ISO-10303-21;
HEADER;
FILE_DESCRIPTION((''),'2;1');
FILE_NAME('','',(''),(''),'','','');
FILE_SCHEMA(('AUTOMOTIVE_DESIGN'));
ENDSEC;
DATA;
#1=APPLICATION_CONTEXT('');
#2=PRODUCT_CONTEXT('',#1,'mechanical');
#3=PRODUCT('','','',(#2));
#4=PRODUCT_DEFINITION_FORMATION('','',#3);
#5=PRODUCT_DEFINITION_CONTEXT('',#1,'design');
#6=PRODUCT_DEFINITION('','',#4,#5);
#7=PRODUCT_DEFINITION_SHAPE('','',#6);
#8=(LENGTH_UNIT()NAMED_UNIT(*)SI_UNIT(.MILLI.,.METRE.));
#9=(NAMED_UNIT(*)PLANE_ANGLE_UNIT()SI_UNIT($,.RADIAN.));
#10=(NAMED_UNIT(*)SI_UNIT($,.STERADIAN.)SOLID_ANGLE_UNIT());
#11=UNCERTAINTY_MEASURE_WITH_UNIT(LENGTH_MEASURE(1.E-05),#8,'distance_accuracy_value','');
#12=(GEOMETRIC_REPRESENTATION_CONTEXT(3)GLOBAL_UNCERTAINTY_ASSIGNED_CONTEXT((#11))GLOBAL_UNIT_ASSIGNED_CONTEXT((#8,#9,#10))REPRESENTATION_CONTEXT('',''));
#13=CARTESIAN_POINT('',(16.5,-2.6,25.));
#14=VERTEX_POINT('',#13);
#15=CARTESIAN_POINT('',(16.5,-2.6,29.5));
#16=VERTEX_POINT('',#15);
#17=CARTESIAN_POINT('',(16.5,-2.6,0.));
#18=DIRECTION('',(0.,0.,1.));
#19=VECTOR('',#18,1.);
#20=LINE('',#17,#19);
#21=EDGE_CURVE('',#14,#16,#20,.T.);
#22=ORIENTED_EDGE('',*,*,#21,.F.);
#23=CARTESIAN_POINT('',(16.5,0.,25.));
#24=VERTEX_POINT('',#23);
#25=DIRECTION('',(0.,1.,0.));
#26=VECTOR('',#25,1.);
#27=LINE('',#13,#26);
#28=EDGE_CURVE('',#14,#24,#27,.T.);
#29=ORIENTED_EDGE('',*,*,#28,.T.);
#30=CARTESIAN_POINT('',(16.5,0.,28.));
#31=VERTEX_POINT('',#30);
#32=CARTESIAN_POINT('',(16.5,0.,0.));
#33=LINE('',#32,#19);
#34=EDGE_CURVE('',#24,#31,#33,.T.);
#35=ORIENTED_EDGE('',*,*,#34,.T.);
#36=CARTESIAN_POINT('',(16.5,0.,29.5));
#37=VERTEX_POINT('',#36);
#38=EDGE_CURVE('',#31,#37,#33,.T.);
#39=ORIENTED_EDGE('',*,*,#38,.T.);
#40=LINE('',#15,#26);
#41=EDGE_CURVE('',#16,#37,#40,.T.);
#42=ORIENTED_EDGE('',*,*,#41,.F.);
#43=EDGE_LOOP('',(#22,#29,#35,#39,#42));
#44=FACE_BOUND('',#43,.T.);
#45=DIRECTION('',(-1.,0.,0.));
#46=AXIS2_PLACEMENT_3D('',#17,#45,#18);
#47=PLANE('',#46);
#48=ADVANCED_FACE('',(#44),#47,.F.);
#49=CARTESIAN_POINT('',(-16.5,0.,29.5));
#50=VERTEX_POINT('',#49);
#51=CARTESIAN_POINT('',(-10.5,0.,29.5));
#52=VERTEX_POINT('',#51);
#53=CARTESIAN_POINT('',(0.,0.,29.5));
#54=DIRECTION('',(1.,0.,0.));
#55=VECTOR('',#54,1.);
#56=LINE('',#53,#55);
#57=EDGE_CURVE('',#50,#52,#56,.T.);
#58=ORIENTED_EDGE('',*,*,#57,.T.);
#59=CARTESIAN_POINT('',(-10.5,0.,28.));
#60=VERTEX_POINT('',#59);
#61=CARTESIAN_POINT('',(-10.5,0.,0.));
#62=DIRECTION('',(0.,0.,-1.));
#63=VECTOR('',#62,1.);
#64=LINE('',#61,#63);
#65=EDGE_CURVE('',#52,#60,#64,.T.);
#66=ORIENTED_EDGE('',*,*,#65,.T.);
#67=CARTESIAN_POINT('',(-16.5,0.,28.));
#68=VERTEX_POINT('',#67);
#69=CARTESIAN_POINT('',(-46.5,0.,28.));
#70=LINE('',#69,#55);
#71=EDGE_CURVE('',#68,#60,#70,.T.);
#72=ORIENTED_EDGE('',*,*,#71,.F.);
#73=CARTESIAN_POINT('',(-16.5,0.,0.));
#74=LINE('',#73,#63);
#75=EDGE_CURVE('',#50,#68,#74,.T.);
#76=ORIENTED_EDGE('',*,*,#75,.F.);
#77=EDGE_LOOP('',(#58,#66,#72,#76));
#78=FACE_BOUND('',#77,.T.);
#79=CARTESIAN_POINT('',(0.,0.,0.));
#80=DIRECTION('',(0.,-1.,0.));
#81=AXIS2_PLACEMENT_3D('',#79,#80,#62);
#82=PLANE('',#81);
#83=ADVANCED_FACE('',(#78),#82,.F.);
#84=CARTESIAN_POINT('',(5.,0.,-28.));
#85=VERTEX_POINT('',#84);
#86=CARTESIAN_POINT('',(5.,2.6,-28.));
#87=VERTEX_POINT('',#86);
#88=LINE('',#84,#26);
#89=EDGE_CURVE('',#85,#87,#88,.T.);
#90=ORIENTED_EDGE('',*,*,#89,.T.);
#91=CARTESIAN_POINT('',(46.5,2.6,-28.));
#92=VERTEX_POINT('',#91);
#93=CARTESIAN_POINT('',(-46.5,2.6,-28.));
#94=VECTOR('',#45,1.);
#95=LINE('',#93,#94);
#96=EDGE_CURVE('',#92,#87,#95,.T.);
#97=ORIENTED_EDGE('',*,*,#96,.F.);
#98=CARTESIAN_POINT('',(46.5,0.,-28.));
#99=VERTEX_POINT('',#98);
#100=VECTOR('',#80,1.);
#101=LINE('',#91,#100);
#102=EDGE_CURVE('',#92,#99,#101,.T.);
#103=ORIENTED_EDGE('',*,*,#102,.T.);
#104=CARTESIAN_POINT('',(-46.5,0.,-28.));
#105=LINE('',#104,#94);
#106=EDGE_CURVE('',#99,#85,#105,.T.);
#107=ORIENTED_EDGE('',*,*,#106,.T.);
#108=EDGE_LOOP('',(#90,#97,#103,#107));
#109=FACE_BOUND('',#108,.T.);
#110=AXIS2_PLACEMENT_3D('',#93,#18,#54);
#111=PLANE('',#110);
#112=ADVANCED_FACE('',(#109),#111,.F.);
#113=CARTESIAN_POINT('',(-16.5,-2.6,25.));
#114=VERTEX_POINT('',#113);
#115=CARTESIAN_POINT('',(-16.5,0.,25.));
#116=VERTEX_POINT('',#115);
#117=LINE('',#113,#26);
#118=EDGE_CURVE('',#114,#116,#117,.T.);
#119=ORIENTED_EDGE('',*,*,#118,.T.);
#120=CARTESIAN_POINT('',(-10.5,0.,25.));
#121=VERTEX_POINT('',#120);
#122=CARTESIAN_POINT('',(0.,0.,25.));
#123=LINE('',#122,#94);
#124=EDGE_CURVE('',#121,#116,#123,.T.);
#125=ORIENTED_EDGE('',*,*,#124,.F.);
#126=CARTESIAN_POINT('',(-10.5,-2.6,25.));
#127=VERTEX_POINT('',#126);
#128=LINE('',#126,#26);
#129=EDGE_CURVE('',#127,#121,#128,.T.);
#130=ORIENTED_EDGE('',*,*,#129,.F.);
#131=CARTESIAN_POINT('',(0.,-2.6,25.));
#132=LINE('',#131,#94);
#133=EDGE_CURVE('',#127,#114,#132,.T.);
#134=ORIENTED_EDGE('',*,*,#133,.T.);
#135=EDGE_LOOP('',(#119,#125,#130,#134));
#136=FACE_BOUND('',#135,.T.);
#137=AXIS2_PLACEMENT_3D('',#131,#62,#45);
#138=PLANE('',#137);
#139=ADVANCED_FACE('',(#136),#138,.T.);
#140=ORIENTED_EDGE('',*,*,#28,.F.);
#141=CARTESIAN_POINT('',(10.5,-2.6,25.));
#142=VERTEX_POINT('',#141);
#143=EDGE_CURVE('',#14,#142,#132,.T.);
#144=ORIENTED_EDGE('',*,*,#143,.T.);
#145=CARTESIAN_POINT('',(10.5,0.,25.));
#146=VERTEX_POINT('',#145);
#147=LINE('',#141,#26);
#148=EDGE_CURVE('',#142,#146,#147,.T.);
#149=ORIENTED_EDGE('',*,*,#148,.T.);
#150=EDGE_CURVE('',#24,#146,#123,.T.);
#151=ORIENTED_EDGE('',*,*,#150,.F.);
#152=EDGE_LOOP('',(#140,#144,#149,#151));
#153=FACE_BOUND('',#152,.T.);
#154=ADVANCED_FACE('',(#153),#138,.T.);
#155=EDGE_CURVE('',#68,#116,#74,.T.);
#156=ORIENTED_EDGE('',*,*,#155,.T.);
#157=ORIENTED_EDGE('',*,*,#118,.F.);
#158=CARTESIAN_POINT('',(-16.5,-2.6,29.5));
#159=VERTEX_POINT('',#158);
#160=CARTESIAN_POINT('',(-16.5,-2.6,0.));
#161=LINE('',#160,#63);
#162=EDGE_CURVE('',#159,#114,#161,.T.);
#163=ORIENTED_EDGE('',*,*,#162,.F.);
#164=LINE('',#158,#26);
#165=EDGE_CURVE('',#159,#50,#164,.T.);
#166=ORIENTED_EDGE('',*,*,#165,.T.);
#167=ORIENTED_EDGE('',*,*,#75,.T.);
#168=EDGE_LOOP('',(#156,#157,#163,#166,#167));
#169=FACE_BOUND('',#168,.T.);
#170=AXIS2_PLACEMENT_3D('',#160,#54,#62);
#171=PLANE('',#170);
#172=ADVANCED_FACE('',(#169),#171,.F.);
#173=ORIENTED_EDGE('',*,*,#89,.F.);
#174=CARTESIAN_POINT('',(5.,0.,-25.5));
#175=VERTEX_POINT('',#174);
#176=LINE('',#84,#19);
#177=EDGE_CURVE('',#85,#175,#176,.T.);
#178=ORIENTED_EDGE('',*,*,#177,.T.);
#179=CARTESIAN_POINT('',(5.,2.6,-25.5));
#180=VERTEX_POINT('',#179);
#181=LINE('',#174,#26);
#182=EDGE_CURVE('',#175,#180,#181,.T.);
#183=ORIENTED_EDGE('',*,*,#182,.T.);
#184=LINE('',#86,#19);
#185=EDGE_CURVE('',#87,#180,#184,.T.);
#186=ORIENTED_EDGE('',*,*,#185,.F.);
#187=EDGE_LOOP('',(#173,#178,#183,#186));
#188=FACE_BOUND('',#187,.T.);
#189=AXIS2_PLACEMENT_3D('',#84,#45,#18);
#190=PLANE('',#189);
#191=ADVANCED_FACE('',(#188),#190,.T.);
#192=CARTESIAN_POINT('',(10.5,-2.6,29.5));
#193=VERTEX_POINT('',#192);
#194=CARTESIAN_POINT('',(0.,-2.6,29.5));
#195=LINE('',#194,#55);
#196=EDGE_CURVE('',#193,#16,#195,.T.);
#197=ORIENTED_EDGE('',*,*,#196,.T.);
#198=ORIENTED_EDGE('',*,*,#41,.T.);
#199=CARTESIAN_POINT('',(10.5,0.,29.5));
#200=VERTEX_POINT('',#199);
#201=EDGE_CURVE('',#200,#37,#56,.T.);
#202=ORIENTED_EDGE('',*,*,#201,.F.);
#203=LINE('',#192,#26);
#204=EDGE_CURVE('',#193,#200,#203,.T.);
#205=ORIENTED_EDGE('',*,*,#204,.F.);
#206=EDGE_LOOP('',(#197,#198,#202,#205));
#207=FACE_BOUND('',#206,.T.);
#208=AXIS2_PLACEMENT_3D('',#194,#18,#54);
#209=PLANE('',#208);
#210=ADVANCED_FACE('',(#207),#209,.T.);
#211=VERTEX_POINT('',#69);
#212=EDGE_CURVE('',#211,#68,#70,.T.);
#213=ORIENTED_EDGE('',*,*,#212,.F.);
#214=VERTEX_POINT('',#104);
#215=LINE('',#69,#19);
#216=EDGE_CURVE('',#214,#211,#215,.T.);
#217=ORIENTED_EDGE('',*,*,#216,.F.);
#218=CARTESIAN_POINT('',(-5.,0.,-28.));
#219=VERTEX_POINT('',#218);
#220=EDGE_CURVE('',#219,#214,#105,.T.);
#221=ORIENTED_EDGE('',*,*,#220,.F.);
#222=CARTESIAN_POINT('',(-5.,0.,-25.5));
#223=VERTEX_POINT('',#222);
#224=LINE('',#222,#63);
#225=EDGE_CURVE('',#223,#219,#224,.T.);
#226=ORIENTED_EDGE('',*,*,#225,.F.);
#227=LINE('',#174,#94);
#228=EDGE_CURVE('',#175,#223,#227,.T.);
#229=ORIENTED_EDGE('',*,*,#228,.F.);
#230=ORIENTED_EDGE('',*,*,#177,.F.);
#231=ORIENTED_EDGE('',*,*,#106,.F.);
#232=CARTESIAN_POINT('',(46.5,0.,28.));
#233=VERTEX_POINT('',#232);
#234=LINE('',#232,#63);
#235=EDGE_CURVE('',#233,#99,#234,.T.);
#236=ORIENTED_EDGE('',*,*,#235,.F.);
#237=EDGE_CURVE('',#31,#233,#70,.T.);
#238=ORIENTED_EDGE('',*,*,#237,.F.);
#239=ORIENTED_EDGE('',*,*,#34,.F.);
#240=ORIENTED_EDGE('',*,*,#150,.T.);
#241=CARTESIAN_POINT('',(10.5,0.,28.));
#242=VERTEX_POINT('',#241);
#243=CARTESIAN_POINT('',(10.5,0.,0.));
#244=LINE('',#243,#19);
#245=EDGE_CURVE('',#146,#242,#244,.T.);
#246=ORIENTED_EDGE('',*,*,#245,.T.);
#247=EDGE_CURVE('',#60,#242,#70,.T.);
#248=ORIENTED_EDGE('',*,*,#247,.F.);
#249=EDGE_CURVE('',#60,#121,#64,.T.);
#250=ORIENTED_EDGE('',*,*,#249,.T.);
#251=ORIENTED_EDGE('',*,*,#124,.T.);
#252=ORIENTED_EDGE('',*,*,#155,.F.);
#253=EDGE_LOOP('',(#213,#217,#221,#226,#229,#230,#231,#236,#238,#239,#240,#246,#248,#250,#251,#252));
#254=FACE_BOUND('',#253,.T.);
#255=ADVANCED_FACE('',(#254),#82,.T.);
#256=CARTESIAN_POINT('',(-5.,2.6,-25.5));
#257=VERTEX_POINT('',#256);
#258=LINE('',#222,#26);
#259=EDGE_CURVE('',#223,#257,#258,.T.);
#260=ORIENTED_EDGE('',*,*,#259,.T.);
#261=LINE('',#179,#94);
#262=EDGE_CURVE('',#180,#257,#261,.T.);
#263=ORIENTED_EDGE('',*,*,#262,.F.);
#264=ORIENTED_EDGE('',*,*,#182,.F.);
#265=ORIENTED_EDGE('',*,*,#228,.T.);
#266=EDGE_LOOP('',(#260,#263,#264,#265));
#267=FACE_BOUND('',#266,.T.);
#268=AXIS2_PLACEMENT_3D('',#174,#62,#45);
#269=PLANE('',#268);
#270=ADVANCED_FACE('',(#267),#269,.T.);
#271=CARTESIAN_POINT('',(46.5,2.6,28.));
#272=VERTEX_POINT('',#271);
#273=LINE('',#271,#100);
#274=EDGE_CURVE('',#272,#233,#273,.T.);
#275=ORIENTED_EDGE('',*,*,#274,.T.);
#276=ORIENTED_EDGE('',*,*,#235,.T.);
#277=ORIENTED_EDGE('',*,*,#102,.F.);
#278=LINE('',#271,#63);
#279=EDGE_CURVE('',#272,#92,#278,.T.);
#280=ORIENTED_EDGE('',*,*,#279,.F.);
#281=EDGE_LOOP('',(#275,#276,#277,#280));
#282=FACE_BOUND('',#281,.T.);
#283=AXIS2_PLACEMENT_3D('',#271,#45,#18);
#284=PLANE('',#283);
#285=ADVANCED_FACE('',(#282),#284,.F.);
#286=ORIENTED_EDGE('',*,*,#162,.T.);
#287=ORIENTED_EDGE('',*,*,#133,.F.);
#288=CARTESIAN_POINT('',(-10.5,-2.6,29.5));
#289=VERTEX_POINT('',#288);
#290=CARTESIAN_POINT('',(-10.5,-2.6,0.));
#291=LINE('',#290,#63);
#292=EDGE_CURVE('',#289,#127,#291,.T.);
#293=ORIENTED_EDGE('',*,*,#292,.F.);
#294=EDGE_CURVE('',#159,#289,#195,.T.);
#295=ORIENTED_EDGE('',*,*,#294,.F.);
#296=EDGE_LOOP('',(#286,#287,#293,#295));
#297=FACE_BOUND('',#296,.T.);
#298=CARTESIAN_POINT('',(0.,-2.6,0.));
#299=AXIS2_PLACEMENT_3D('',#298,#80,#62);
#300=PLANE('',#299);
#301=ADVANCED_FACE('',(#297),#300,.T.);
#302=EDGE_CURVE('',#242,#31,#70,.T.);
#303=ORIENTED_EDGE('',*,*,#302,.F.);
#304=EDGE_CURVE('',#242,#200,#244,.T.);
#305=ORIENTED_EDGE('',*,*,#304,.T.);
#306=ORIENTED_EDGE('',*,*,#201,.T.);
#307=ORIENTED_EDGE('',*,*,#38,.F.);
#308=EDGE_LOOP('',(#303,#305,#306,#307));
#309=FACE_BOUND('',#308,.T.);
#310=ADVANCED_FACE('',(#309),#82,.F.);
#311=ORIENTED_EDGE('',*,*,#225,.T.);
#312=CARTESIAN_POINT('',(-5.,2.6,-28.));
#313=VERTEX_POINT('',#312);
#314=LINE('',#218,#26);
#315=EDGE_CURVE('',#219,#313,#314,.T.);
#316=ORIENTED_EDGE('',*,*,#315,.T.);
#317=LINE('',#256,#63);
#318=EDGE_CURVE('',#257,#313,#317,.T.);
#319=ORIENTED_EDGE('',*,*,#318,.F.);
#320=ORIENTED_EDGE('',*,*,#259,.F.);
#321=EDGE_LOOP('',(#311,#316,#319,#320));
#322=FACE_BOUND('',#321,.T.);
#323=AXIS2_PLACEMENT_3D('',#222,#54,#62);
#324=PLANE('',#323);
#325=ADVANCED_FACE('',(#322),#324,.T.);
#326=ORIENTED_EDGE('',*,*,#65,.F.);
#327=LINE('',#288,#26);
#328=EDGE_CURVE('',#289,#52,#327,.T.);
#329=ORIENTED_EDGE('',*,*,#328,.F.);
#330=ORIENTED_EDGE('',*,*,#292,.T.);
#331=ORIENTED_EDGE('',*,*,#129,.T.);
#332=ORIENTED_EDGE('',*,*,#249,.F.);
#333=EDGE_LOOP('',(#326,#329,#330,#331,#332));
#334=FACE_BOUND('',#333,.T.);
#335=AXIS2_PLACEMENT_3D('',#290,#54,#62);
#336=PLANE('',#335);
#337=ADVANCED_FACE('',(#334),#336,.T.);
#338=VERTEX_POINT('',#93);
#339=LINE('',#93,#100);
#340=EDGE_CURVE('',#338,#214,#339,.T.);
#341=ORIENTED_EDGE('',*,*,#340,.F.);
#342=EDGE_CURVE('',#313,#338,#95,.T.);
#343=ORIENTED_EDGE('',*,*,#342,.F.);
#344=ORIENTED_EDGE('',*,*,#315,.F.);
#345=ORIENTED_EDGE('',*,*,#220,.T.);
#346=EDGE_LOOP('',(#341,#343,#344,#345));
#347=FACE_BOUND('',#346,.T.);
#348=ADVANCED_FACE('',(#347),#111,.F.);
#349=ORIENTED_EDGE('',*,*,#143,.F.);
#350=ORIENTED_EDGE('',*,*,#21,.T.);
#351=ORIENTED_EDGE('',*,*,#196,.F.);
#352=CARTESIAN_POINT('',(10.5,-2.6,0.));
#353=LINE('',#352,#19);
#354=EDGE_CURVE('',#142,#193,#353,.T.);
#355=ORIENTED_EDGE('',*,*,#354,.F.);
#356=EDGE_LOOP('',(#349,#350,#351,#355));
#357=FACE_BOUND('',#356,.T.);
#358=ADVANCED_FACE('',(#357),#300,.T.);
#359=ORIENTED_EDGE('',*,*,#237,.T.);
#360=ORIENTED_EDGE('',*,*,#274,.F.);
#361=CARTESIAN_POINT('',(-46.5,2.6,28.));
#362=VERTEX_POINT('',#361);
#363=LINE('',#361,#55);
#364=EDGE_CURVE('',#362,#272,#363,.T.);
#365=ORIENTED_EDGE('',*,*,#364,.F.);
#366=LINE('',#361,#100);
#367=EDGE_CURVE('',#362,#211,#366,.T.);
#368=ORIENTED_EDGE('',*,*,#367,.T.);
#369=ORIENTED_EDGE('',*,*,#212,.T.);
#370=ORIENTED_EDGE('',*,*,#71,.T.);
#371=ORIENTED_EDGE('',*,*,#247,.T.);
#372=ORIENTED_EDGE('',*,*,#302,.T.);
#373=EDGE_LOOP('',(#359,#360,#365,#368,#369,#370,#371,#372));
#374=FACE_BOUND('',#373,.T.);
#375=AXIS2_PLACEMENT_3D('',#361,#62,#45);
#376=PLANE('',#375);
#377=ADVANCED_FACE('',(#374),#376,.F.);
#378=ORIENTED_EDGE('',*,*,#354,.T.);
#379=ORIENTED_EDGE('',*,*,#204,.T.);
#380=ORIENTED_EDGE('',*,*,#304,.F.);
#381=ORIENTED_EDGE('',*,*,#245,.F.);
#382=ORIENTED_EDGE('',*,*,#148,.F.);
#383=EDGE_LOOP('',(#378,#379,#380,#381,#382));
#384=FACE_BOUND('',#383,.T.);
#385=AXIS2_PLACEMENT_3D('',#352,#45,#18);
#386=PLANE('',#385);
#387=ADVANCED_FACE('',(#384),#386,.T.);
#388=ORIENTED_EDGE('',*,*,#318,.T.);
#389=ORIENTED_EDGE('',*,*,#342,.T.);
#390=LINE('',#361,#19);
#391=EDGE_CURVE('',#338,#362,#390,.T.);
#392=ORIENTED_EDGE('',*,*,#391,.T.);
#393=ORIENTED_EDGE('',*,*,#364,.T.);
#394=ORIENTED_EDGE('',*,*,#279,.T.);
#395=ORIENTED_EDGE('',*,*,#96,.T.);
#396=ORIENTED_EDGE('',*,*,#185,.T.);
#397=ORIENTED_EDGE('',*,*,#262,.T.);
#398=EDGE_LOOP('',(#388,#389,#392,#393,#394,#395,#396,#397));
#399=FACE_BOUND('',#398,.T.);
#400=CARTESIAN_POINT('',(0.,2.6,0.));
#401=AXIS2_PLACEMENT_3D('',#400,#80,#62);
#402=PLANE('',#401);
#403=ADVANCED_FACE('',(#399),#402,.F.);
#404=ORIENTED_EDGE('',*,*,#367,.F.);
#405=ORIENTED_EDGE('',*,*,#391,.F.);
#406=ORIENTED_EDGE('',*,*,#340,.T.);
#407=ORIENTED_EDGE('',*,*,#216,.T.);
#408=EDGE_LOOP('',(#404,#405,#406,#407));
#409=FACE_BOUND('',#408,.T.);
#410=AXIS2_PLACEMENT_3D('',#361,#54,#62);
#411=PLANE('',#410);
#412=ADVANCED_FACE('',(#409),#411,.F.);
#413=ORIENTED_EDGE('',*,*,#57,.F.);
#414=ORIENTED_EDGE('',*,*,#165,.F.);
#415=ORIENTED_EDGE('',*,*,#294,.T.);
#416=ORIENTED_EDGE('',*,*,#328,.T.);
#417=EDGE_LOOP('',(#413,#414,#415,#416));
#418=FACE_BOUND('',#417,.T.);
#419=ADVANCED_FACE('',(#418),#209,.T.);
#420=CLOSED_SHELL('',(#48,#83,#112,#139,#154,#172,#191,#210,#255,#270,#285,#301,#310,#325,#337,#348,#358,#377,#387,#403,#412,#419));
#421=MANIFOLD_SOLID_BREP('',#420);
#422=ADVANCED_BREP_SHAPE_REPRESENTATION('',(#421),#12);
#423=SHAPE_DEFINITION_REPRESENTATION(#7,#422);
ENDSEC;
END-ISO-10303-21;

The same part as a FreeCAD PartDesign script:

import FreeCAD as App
import Part
import Sketcher
from FreeCAD import Vector
Q = App.Units.Quantity

doc = App.newDocument("Part")
body = doc.addObject("PartDesign::Body", "Body")

sketch1 = body.newObject("Sketcher::SketchObject", "Sketch")
sketch1.AttachmentSupport = (doc.getObject("XZ_Plane"), [""])
sketch1.MapMode = "FlatFace"
sketch1.addGeometry([
    Part.LineSegment(Vector(-46.5, -28, 0), Vector(-46.5, 28, 0)),
    Part.LineSegment(Vector(-46.5, 28, 0), Vector(46.5, 28, 0)),
    Part.LineSegment(Vector(46.5, 28, 0), Vector(46.5, -28, 0)),
    Part.LineSegment(Vector(46.5, -28, 0), Vector(-46.5, -28, 0)),
], False)
sketch1.addConstraint([
    Sketcher.Constraint("Coincident", 0, 2, 1, 1),
    Sketcher.Constraint("Coincident", 1, 2, 2, 1),
    Sketcher.Constraint("Coincident", 2, 2, 3, 1),
    Sketcher.Constraint("Coincident", 3, 2, 0, 1),
    Sketcher.Constraint("Vertical", 0),
    Sketcher.Constraint("Horizontal", 1),
    Sketcher.Constraint("Vertical", 2),
    Sketcher.Constraint("Horizontal", 3),
    Sketcher.Constraint("Symmetric", 0, 2, 2, 2, -1, 1),
    Sketcher.Constraint("DistanceX", 1, 1, 1, 2, Q("93 mm")),
    Sketcher.Constraint("DistanceY", 0, 1, 0, 2, Q("56 mm")),
])
pad1 = body.newObject("PartDesign::Pad", "Pad")
pad1.Profile = sketch1
pad1.Length = 2.6
pad1.Reversed = True

sketch2 = body.newObject("Sketcher::SketchObject", "Sketch001")
sketch2.AttachmentSupport = (doc.getObject("XZ_Plane"), [""])
sketch2.MapMode = "FlatFace"
sketch2.AttachmentOffset = App.Placement(Vector(0, 0, -2.6), App.Rotation())
sketch2.addGeometry([
    Part.LineSegment(Vector(-5, -28, 0), Vector(-5, -25.5, 0)),
    Part.LineSegment(Vector(-5, -25.5, 0), Vector(5, -25.5, 0)),
    Part.LineSegment(Vector(5, -25.5, 0), Vector(5, -28, 0)),
    Part.LineSegment(Vector(5, -28, 0), Vector(-5, -28, 0)),
], False)
sketch2.addConstraint([
    Sketcher.Constraint("Coincident", 0, 2, 1, 1),
    Sketcher.Constraint("Coincident", 1, 2, 2, 1),
    Sketcher.Constraint("Coincident", 2, 2, 3, 1),
    Sketcher.Constraint("Coincident", 3, 2, 0, 1),
    Sketcher.Constraint("Vertical", 0),
    Sketcher.Constraint("Horizontal", 1),
    Sketcher.Constraint("Vertical", 2),
    Sketcher.Constraint("Horizontal", 3),
    Sketcher.Constraint("DistanceX", 1, 1, 1, 2, Q("10 mm")),
    Sketcher.Constraint("DistanceY", 0, 1, 0, 2, Q("2.5 mm")),
    Sketcher.Constraint("DistanceX", 0, 2, -1, 1, Q("5 mm")),
    Sketcher.Constraint("DistanceY", 2, 2, -1, 1, Q("28 mm")),
])
pocket1 = body.newObject("PartDesign::Pocket", "Pocket")
pocket1.Profile = sketch2
pocket1.Length = 2.6
pocket1.Reversed = True

sketch3 = body.newObject("Sketcher::SketchObject", "Sketch002")
sketch3.AttachmentSupport = (doc.getObject("XZ_Plane"), [""])
sketch3.MapMode = "FlatFace"
sketch3.addGeometry([
    Part.LineSegment(Vector(10.5, 29.5, 0), Vector(10.5, 25, 0)),
    Part.LineSegment(Vector(10.5, 25, 0), Vector(16.5, 25, 0)),
    Part.LineSegment(Vector(16.5, 25, 0), Vector(16.5, 29.5, 0)),
    Part.LineSegment(Vector(16.5, 29.5, 0), Vector(10.5, 29.5, 0)),
    Part.LineSegment(Vector(-16.5, 29.5, 0), Vector(-16.5, 25, 0)),
    Part.LineSegment(Vector(-16.5, 25, 0), Vector(-10.5, 25, 0)),
    Part.LineSegment(Vector(-10.5, 25, 0), Vector(-10.5, 29.5, 0)),
    Part.LineSegment(Vector(-10.5, 29.5, 0), Vector(-16.5, 29.5, 0)),
], False)
sketch3.addConstraint([
    Sketcher.Constraint("Coincident", 0, 2, 1, 1),
    Sketcher.Constraint("Coincident", 1, 2, 2, 1),
    Sketcher.Constraint("Coincident", 2, 2, 3, 1),
    Sketcher.Constraint("Coincident", 3, 2, 0, 1),
    Sketcher.Constraint("Coincident", 4, 2, 5, 1),
    Sketcher.Constraint("Coincident", 5, 2, 6, 1),
    Sketcher.Constraint("Coincident", 6, 2, 7, 1),
    Sketcher.Constraint("Coincident", 7, 2, 4, 1),
    Sketcher.Constraint("Vertical", 0),
    Sketcher.Constraint("Horizontal", 1),
    Sketcher.Constraint("Vertical", 2),
    Sketcher.Constraint("Horizontal", 3),
    Sketcher.Constraint("Vertical", 4),
    Sketcher.Constraint("Horizontal", 5),
    Sketcher.Constraint("Vertical", 6),
    Sketcher.Constraint("Horizontal", 7),
    Sketcher.Constraint("Symmetric", 1, 2, 4, 2, -2),
    Sketcher.Constraint("Symmetric", 3, 2, 6, 2, -2),
    Sketcher.Constraint("DistanceX", 1, 1, 1, 2, Q("6 mm")),
    Sketcher.Constraint("DistanceY", 0, 2, 0, 1, Q("4.5 mm")),
    Sketcher.Constraint("DistanceY", -1, 1, 0, 2, Q("25 mm")),
    Sketcher.Constraint("DistanceX", 4, 2, 0, 2, Q("27 mm")),
])
pad2 = body.newObject("PartDesign::Pad", "Pad001")
pad2.Profile = sketch3
pad2.Length = 2.6

doc.recompute()
